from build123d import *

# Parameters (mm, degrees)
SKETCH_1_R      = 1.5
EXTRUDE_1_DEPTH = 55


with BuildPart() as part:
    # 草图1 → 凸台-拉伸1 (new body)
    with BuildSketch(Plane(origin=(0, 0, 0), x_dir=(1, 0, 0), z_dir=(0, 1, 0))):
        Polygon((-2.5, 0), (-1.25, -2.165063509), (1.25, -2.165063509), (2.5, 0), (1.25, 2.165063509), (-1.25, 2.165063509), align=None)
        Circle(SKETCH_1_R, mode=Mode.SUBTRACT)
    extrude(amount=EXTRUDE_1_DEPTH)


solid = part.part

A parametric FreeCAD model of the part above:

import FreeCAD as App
import Part
import Sketcher

V = App.Vector
Q = App.Units.Quantity

doc = App.newDocument("Part")
body = doc.addObject("PartDesign::Body", "Body")

sketch1 = body.newObject("Sketcher::SketchObject", "Sketch")
sketch1.AttachmentSupport = (doc.getObject("XZ_Plane"), [""])
sketch1.MapMode = "FlatFace"
sketch1.addGeometry(Part.LineSegment(V(-2.5, 0, 0), V(-1.2, 2.2, 0)), False)
sketch1.addGeometry(Part.LineSegment(V(-1.2, 2.2, 0), V(1.2, 2.2, 0)), False)
sketch1.addGeometry(Part.LineSegment(V(1.2, 2.2, 0), V(2.5, 0, 0)), False)
sketch1.addGeometry(Part.LineSegment(V(2.5, 0, 0), V(1.2, -2.2, 0)), False)
sketch1.addGeometry(Part.LineSegment(V(1.2, -2.2, 0), V(-1.2, -2.2, 0)), False)
sketch1.addGeometry(Part.LineSegment(V(-1.2, -2.2, 0), V(-2.5, 0, 0)), False)
sketch1.addGeometry(Part.Circle(V(0, 0, 0), V(0, 0, 1), 1.5), False)
sketch1.addConstraint(Sketcher.Constraint("Coincident", 0, 2, 1, 1))
sketch1.addConstraint(Sketcher.Constraint("Coincident", 1, 2, 2, 1))
sketch1.addConstraint(Sketcher.Constraint("Coincident", 2, 2, 3, 1))
sketch1.addConstraint(Sketcher.Constraint("Coincident", 3, 2, 4, 1))
sketch1.addConstraint(Sketcher.Constraint("Coincident", 4, 2, 5, 1))
sketch1.addConstraint(Sketcher.Constraint("Coincident", 5, 2, 0, 1))
sketch1.addConstraint(Sketcher.Constraint("Horizontal", 1))
sketch1.addConstraint(Sketcher.Constraint("Horizontal", 4))
sketch1.addConstraint(Sketcher.Constraint("Coincident", 6, 3, -1, 1))
sketch1.addConstraint(Sketcher.Constraint("Symmetric", 0, 2, 3, 2, -1, 1))
sketch1.addConstraint(Sketcher.Constraint("Symmetric", 2, 2, 5, 2, -1, 1))
sketch1.addConstraint(Sketcher.Constraint("PointOnObject", 2, 2, -1))
sketch1.addConstraint(Sketcher.Constraint("Parallel", 2, 5))
sketch1.addConstraint(Sketcher.Constraint("Vertical", 1, 2, 3, 2))
sketch1.addConstraint(Sketcher.Constraint("Diameter", 6, 3.0))
sketch1.addConstraint(Sketcher.Constraint("Angle", 0, Q("60 deg")))
sketch1.addConstraint(Sketcher.Constraint("DistanceX", 1, 1, 1, 2, 2.5))
sketch1.addConstraint(Sketcher.Constraint("Distance", 0, 2.5))
pad1 = body.newObject("PartDesign::Pad", "Pad")
pad1.Profile = sketch1
pad1.Length = 55
pad1.Reversed = True

doc.recompute()
